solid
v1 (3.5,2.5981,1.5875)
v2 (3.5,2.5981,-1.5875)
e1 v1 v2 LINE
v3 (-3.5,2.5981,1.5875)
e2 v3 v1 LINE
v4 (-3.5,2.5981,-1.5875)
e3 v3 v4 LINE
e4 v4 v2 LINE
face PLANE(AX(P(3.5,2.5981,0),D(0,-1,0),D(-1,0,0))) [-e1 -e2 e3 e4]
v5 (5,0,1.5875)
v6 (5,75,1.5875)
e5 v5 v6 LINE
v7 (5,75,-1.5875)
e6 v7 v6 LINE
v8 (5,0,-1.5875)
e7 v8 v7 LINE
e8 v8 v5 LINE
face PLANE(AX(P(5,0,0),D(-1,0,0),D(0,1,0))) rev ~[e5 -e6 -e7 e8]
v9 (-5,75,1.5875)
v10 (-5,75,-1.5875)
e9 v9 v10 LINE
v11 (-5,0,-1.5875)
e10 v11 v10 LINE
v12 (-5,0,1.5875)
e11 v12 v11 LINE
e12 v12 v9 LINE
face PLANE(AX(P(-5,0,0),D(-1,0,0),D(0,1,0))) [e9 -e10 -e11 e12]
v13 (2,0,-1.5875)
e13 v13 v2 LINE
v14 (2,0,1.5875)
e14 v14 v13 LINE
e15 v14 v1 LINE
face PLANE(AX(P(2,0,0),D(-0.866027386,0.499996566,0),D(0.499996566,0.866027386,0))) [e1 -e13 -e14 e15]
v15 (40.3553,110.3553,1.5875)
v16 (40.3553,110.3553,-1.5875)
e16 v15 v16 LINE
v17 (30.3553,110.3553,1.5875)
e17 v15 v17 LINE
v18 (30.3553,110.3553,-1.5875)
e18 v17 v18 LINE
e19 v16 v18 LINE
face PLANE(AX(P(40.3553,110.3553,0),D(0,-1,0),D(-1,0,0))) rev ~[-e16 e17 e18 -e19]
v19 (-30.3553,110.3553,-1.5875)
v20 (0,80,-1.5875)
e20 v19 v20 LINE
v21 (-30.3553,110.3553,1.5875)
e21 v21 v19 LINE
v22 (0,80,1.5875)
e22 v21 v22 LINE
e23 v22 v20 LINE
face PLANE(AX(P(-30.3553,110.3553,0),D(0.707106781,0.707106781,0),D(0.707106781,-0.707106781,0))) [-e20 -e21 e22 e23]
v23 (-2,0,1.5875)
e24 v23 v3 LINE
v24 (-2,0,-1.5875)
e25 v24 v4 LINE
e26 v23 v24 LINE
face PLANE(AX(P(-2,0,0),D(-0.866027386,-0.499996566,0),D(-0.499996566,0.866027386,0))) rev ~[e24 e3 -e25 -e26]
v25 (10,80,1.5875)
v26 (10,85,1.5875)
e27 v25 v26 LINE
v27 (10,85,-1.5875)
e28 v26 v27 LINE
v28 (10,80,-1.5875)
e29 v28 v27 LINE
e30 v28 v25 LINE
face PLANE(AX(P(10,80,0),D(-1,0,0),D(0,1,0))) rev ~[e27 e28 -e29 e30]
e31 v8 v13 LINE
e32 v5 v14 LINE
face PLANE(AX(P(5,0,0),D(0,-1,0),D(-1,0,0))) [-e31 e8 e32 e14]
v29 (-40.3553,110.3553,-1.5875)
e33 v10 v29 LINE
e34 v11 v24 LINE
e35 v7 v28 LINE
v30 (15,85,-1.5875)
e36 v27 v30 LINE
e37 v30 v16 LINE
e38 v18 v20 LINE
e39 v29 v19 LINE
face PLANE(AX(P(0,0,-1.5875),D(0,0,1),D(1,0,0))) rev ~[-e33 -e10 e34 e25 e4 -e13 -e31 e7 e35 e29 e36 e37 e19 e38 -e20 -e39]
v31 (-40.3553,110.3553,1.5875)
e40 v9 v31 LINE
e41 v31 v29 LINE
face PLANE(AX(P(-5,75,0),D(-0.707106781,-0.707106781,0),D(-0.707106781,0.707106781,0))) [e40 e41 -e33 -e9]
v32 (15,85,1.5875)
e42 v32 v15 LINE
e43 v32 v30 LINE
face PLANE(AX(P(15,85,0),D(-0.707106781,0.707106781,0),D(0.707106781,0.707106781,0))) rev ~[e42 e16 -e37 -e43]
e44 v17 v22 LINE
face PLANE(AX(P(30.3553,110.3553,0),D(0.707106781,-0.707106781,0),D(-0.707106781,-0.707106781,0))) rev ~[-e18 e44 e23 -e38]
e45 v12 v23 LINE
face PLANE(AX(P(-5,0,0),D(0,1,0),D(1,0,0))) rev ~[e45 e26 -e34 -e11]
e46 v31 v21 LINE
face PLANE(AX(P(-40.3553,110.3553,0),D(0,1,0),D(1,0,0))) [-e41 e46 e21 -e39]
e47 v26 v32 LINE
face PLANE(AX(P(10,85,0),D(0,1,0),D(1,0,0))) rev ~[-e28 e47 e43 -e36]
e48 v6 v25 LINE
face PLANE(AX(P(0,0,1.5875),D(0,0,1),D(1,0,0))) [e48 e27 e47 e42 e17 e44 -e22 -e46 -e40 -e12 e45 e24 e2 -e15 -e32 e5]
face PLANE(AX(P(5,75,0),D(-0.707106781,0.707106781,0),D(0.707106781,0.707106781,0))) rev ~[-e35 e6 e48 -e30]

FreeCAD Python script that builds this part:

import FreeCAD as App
import Part
import Sketcher
Q = App.Units.Quantity


def add_polygon(sketch, points):
    """Adds a closed chain of lines whose ends are joined by coincident constraints."""
    first, n = sketch.GeometryCount, len(points)
    for a, b in zip(points, points[1:] + points[:1]):
        sketch.addGeometry(Part.LineSegment(App.Vector(*a, 0), App.Vector(*b, 0)), False)
    for i in range(n):
        sketch.addConstraint(Sketcher.Constraint("Coincident", first + i, 2, first + (i + 1) % n, 1))

doc = App.newDocument("Part")
body = doc.addObject("PartDesign::Body", "Body")

# Sketch on XY plane
sketch1 = body.newObject("Sketcher::SketchObject", "Sketch")
sketch1.AttachmentSupport = (doc.getObject("XY_Plane"), [""])
sketch1.MapMode = "FlatFace"
add_polygon(sketch1, [(2, 0), (5, 0), (5, 75), (10, 80), (10, 85), (15, 85), (40.4, 110.4), (30.4, 110.4), (0, 80), (-30.4, 110.4), (-40.4, 110.4), (-5, 75), (-5, 0), (-2, 0), (-3.5, 2.6), (3.5, 2.6)])  # lines 0-15
sketch1.addConstraint([
    Sketcher.Constraint("Horizontal", 0),
    Sketcher.Constraint("Vertical", 1),
    Sketcher.Constraint("Vertical", 3),
    Sketcher.Constraint("Horizontal", 4),
    Sketcher.Constraint("Horizontal", 6),
    Sketcher.Constraint("Horizontal", 9),
    Sketcher.Constraint("Vertical", 11),
    Sketcher.Constraint("Horizontal", 12),
    Sketcher.Constraint("Horizontal", 14),
    Sketcher.Constraint("Symmetric", 0, 2, 11, 2, -1, 1),
    Sketcher.Constraint("Symmetric", 6, 2, 8, 2, -2),
    Sketcher.Constraint("Symmetric", 12, 2, 15, 2, -2),
    Sketcher.Constraint("PointOnObject", 7, 2, -2),
    Sketcher.Constraint("Parallel", 2, 5),
    Sketcher.Constraint("Parallel", 5, 7),
    Sketcher.Constraint("Perpendicular", 7, 8),
    Sketcher.Constraint("Parallel", 8, 10),
    Sketcher.Constraint("Horizontal", 2, 2, 7, 2),
    Sketcher.Constraint("Horizontal", 1, 2, 10, 2),
    Sketcher.Constraint("Equal", 6, 9),
    Sketcher.Constraint("Equal", 13, 15),
    Sketcher.Constraint("DistanceX", 0, 1, 0, 2, Q("3 mm")),
    Sketcher.Constraint("DistanceX", 4, 1, 4, 2, Q("5 mm")),
    Sketcher.Constraint("DistanceX", 6, 2, 6, 1, Q("10 mm")),
    Sketcher.Constraint("DistanceY", 1, 1, 1, 2, Q("75 mm")),
    Sketcher.Constraint("Distance", 10, Q("50 mm")),
    Sketcher.Constraint("Distance", 13, Q("3 mm")),
    Sketcher.Constraint("DistanceX", -1, 1, 0, 2, Q("5 mm")),
    Sketcher.Constraint("DistanceX", 14, 1, 14, 2, Q("7 mm")),
])
pad1 = body.newObject("PartDesign::Pad", "Pad")
pad1.Profile = sketch1
pad1.Length = 3.175
pad1.Midplane = True

doc.recompute()
